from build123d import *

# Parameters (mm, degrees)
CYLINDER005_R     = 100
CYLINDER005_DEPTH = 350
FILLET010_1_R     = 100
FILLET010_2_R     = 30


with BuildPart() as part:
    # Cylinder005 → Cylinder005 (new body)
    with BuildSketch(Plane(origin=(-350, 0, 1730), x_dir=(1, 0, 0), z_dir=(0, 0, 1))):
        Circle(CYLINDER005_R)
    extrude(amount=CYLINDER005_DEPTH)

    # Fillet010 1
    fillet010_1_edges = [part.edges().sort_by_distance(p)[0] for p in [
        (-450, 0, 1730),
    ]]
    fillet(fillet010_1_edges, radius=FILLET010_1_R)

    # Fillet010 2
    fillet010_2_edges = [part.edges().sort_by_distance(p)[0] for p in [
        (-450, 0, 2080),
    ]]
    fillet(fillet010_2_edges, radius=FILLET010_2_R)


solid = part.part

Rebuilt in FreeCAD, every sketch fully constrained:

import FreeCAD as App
import Part
import Sketcher
from FreeCAD import Vector
Q = App.Units.Quantity


def edges_at(feature, points):
    """Names of the edges that pass closest to the given points."""
    edges = feature.Shape.Edges
    near = lambda p: min(range(len(edges)), key=lambda i: edges[i].distToShape(Part.Vertex(*p))[0])
    return sorted({f"Edge{near(p) + 1}" for p in points})

doc = App.newDocument("Part")
body = doc.addObject("PartDesign::Body", "Body")

# Sketch on XY plane
sketch1 = body.newObject("Sketcher::SketchObject", "Sketch")
sketch1.AttachmentSupport = (doc.getObject("XY_Plane"), [""])
sketch1.MapMode = "FlatFace"
sketch1.AttachmentOffset = App.Placement(Vector(0, 0, 1730), App.Rotation())
sketch1.addGeometry(Part.Circle(Vector(-350, 0, 0), Vector(0, 0, 1), 100), False)
sketch1.addConstraint(Sketcher.Constraint("PointOnObject", 0, 3, -1))
sketch1.addConstraint(Sketcher.Constraint("Diameter", 0, Q("200 mm")))
sketch1.addConstraint(Sketcher.Constraint("DistanceX", 0, 3, -1, 1, Q("350 mm")))
pad1 = body.newObject("PartDesign::Pad", "Pad")
pad1.Profile = sketch1
pad1.Length = 350
doc.recompute()

fillet = body.newObject("PartDesign::Fillet", "Fillet")
fillet.Base = (pad1, edges_at(pad1, [(-450, 0, 1730)]))
fillet.Radius = 100
doc.recompute()

fillet2 = body.newObject("PartDesign::Fillet", "Fillet001")
fillet2.Base = (fillet, edges_at(fillet, [(-450, 0, 2080)]))
fillet2.Radius = 30

doc.recompute()
